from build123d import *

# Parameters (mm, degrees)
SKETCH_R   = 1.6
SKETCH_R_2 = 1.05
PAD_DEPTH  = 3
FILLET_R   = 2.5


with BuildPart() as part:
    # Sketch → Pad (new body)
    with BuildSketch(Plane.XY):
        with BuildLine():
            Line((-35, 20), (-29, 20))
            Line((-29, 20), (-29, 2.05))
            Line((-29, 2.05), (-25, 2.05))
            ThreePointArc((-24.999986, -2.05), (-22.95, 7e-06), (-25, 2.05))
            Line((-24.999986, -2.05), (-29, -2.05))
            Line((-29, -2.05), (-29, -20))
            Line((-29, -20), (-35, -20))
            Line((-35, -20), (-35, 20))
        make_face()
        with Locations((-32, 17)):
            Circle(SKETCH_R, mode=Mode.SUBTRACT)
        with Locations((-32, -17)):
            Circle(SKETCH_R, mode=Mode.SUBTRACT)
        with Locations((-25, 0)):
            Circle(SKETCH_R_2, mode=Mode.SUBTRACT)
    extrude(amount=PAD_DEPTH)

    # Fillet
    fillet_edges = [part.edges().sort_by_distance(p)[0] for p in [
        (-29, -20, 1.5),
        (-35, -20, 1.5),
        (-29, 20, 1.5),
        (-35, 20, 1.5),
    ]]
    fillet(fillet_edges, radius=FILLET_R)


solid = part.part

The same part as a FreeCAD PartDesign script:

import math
import FreeCAD as App
import Part
import Sketcher
from FreeCAD import Vector


def edges_at(feature, points):
    """Names of the edges that pass closest to the given points."""
    edges = feature.Shape.Edges
    near = lambda p: min(range(len(edges)), key=lambda i: edges[i].distToShape(Part.Vertex(*p))[0])
    return sorted({f"Edge{near(p) + 1}" for p in points})

doc = App.newDocument("Part")
params = doc.addObject("Spreadsheet::Sheet", "Params")
for row, (alias, value) in enumerate([
    ("sketch1_diameter", "3.2 mm"),
    ("sketch1_diameter2", "2.1 mm"),
    ("sketch1_width", "6 mm"),
    ("sketch1_width2", "4 mm"),
    ("sketch1_height", "40 mm"),
    ("pad1_length", "3 mm"),
    ("fillet_radius", "2.5 mm"),
], start=1):
    params.set(f"A{row}", alias)
    params.set(f"B{row}", "=" + value)
    params.setAlias(f"B{row}", alias)

body = doc.addObject("PartDesign::Body", "Body")

sketch1 = body.newObject("Sketcher::SketchObject", "Sketch")
sketch1.AttachmentSupport = (doc.getObject("XY_Plane"), [""])
sketch1.MapMode = "FlatFace"
sketch1.addGeometry(Part.LineSegment(Vector(-29, 20, 0), Vector(-35, 20, 0)), False)
sketch1.addGeometry(Part.LineSegment(Vector(-35, 20, 0), Vector(-35, -20, 0)), False)
sketch1.addGeometry(Part.LineSegment(Vector(-35, -20, 0), Vector(-29, -20, 0)), False)
sketch1.addGeometry(Part.LineSegment(Vector(-29, -20, 0), Vector(-29, -2.05, 0)), False)
sketch1.addGeometry(Part.LineSegment(Vector(-29, -2.05, 0), Vector(-24.999986, -2.05, 0)), False)
sketch1.addGeometry(Part.ArcOfCircle(Part.Circle(Vector(-25, 0, 0), Vector(0, 0, 1), 2.05), math.radians(-89.999609), math.radians(90)), False)
sketch1.addGeometry(Part.LineSegment(Vector(-25, 2.05, 0), Vector(-29, 2.05, 0)), False)
sketch1.addGeometry(Part.LineSegment(Vector(-29, 2.05, 0), Vector(-29, 20, 0)), False)
sketch1.addGeometry(Part.Circle(Vector(-32, -17, 0), Vector(0, 0, 1), 1.6), False)
sketch1.addGeometry(Part.Circle(Vector(-25, 0, 0), Vector(0, 0, 1), 1.05), False)
sketch1.addGeometry(Part.Circle(Vector(-32, 17, 0), Vector(0, 0, 1), 1.6), False)
sketch1.addConstraint(Sketcher.Constraint("Coincident", 0, 2, 1, 1))
sketch1.addConstraint(Sketcher.Constraint("Coincident", 1, 2, 2, 1))
sketch1.addConstraint(Sketcher.Constraint("Coincident", 2, 2, 3, 1))
sketch1.addConstraint(Sketcher.Constraint("Coincident", 3, 2, 4, 1))
sketch1.addConstraint(Sketcher.Constraint("Coincident", 4, 2, 5, 1))
sketch1.addConstraint(Sketcher.Constraint("Tangent", 5, 2, 6, 1))
sketch1.addConstraint(Sketcher.Constraint("Coincident", 6, 2, 7, 1))
sketch1.addConstraint(Sketcher.Constraint("Coincident", 7, 2, 0, 1))
sketch1.addConstraint(Sketcher.Constraint("Horizontal", 0))
sketch1.addConstraint(Sketcher.Constraint("Vertical", 1))
sketch1.addConstraint(Sketcher.Constraint("Horizontal", 2))
sketch1.addConstraint(Sketcher.Constraint("Vertical", 3))
sketch1.addConstraint(Sketcher.Constraint("Horizontal", 4))
sketch1.addConstraint(Sketcher.Constraint("Horizontal", 6))
sketch1.addConstraint(Sketcher.Constraint("Vertical", 7))
sketch1.addConstraint(Sketcher.Constraint("Coincident", 9, 3, 5, 3))
sketch1.addConstraint(Sketcher.Constraint("Equal", 8, 10))
sketch1.addConstraint(Sketcher.Constraint("Symmetric", 8, 3, 10, 3, -1))
sketch1.addConstraint(Sketcher.Constraint("Symmetric", 3, 2, 6, 2, -1))
sketch1.addConstraint(Sketcher.Constraint("Equal", 3, 7))
sketch1.addConstraint(Sketcher.Constraint("Diameter", 8, 3.2))
sketch1.addConstraint(Sketcher.Constraint("Diameter", 9, 2.1))
sketch1.addConstraint(Sketcher.Constraint("DistanceX", 0, 2, 0, 1, 6.0))
sketch1.addConstraint(Sketcher.Constraint("DistanceX", 6, 2, 6, 1, 4.0))
sketch1.addConstraint(Sketcher.Constraint("DistanceY", 1, 2, 1, 1, 40.0))
sketch1.addConstraint(Sketcher.Constraint("Radius", 5, 2.05))
sketch1.addConstraint(Sketcher.Constraint("DistanceX", 5, 3, -1, 1, 25.0))
sketch1.addConstraint(Sketcher.Constraint("DistanceX", 8, 3, -1, 1, 32.0))
sketch1.addConstraint(Sketcher.Constraint("DistanceY", 8, 3, -1, 1, 17.0))
sketch1.addConstraint(Sketcher.Constraint("DistanceX", 4, 1, 4, 2, 4.000014))
sketch1.setExpression("Constraints[20]", "Params.sketch1_diameter")
sketch1.setExpression("Constraints[21]", "Params.sketch1_diameter2")
sketch1.setExpression("Constraints[22]", "Params.sketch1_width")
sketch1.setExpression("Constraints[23]", "Params.sketch1_width2")
sketch1.setExpression("Constraints[24]", "Params.sketch1_height")
pad1 = body.newObject("PartDesign::Pad", "Pad")
pad1.Profile = sketch1
pad1.setExpression("Length", "Params.pad1_length")
doc.recompute()

fillet = body.newObject("PartDesign::Fillet", "Fillet")
fillet.Base = (pad1, edges_at(pad1, [
    (-29, -20, 1.5),
    (-35, -20, 1.5),
    (-29, 20, 1.5),
    (-35, 20, 1.5),
]))
fillet.setExpression("Radius", "Params.fillet_radius")

doc.recompute()
